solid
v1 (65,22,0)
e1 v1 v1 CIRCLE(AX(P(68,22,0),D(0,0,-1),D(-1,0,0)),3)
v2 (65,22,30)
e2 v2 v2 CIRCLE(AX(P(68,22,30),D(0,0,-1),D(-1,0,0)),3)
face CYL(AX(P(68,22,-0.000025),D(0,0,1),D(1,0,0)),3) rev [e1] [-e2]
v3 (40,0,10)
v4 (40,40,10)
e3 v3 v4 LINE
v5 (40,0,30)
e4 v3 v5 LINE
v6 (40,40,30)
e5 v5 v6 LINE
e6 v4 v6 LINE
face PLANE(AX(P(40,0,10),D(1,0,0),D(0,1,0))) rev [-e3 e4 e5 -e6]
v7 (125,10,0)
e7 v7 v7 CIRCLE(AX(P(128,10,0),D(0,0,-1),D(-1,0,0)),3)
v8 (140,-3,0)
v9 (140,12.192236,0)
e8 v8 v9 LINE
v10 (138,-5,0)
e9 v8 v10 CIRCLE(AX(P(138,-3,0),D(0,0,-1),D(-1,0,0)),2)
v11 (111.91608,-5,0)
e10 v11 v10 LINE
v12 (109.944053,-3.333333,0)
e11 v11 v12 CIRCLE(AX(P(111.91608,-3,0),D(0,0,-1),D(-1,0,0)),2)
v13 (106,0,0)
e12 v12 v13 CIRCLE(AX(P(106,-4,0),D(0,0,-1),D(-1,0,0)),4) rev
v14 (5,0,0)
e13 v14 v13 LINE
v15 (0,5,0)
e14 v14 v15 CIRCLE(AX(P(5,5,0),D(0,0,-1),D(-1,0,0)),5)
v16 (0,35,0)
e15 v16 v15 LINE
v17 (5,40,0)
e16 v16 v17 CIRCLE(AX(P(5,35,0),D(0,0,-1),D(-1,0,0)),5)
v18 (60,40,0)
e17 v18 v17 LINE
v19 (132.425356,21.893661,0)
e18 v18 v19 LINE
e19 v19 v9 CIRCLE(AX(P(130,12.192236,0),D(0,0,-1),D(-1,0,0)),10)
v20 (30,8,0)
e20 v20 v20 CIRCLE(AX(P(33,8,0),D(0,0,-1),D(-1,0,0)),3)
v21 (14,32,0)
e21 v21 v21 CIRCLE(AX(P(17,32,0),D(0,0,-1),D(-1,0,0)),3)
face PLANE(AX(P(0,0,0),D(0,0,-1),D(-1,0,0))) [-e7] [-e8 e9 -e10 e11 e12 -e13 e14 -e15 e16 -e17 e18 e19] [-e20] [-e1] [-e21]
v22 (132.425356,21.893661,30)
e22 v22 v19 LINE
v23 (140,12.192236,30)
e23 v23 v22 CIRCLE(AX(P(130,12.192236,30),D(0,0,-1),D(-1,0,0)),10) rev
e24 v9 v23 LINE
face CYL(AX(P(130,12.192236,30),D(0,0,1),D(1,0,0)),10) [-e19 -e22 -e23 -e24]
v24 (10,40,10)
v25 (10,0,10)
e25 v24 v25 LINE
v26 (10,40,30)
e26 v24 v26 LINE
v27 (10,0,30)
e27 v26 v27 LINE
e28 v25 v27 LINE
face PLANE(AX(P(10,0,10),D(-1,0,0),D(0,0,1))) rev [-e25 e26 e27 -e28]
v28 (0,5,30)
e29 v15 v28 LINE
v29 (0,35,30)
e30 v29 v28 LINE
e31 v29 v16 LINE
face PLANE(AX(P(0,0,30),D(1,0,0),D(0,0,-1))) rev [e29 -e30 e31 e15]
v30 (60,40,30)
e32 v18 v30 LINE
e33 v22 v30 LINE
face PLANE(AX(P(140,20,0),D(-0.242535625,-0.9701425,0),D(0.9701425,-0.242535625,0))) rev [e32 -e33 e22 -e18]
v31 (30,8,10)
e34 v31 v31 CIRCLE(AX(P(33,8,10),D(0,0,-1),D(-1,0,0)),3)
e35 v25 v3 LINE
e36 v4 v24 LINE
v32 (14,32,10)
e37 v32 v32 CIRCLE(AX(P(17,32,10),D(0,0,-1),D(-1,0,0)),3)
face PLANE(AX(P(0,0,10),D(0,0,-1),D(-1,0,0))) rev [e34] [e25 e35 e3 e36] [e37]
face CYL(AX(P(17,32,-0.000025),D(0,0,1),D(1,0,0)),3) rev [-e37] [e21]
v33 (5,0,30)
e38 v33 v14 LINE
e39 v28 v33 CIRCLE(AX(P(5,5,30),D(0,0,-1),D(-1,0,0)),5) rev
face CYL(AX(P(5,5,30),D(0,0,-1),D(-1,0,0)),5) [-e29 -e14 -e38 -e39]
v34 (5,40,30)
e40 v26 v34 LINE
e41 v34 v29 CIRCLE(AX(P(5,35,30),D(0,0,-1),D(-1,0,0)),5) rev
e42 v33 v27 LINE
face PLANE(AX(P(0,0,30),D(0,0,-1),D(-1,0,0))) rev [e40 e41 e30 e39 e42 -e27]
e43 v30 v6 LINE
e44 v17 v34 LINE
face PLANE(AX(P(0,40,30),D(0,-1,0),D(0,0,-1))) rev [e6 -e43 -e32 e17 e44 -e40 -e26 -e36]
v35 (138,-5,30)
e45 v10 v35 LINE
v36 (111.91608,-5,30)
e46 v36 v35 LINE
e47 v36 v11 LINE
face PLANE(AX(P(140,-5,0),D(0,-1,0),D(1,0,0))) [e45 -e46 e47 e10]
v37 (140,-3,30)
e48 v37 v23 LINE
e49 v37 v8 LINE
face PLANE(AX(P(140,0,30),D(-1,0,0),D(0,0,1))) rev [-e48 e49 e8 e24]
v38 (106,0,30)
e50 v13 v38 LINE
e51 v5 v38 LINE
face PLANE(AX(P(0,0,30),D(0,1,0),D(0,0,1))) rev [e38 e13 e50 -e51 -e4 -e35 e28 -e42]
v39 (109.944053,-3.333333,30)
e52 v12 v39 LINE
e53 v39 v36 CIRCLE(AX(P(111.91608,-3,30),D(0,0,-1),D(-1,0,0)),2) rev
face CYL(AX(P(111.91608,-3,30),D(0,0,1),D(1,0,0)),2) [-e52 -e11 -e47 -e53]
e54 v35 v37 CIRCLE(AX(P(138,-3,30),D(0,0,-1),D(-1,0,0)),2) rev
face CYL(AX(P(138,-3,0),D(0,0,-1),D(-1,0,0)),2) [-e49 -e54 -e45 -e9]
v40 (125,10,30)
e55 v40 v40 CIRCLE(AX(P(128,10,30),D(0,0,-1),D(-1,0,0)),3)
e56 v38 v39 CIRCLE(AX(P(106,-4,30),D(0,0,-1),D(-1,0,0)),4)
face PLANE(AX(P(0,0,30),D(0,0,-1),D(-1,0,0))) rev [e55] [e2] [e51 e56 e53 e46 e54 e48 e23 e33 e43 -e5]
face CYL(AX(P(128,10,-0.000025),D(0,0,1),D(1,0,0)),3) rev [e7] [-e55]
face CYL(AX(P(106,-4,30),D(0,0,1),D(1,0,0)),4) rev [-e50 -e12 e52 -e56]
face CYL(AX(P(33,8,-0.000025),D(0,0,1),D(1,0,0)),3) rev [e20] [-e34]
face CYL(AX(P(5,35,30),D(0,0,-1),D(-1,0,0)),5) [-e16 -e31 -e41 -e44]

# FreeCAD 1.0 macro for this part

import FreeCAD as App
import Part
import Sketcher

V = App.Vector
Q = App.Units.Quantity


def edges_at(feature, points):
    """Names of the edges that pass closest to the given points."""
    edges = feature.Shape.Edges
    near = lambda p: min(range(len(edges)), key=lambda i: edges[i].distToShape(Part.Vertex(*p))[0])
    return sorted({f"Edge{near(p) + 1}" for p in points})


def add_polygon(sketch, points):
    """Adds a closed chain of lines whose ends are joined by coincident constraints."""
    first, n = sketch.GeometryCount, len(points)
    for a, b in zip(points, points[1:] + points[:1]):
        sketch.addGeometry(Part.LineSegment(App.Vector(*a, 0), App.Vector(*b, 0)), False)
    for i in range(n):
        sketch.addConstraint(Sketcher.Constraint("Coincident", first + i, 2, first + (i + 1) % n, 1))

doc = App.newDocument("Part")
params = doc.addObject("Spreadsheet::Sheet", "Params")
for row, (alias, value) in enumerate([
    ("sketch1_width", "140 mm"),
    ("sketch1_height", "40 mm"),
    ("pad1_length", "30 mm"),
    ("sketch2_width", "30 mm"),
    ("sketch2_height", "40 mm"),
    ("pocket1_length", "20 mm"),
    ("sketch3_width", "80 mm"),
    ("sketch3_height", "20 mm"),
    ("sketch4_diameter", "6 mm"),
    ("fillet_radius", "10 mm"),
    ("sketch5_width", "30 mm"),
    ("sketch5_height", "5 mm"),
    ("pad2_length", "30 mm"),
    ("fillet2_radius", "4 mm"),
    ("fillet3_radius", "2 mm"),
    ("fillet4_radius", "5 mm"),
], start=1):
    params.set(f"A{row}", alias)
    params.set(f"B{row}", "=" + value)
    params.setAlias(f"B{row}", alias)

body = doc.addObject("PartDesign::Body", "Body")

sketch1 = body.newObject("Sketcher::SketchObject", "Sketch")
sketch1.AttachmentSupport = (doc.getObject("XY_Plane"), [""])
sketch1.MapMode = "FlatFace"
add_polygon(sketch1, [(0, 40), (0, 0), (140, 0), (140, 40)])
sketch1.addConstraint([
    Sketcher.Constraint("Vertical", 0),
    Sketcher.Constraint("Horizontal", 1),
    Sketcher.Constraint("Vertical", 2),
    Sketcher.Constraint("Horizontal", 3),
    Sketcher.Constraint("Coincident", 0, 2, -1, 1),
    Sketcher.Constraint("DistanceX", 1, 1, 1, 2, Q("140 mm")),
    Sketcher.Constraint("DistanceY", 0, 2, 0, 1, Q("40 mm")),
])
sketch1.setExpression("Constraints[9]", "Params.sketch1_width")
sketch1.setExpression("Constraints[10]", "Params.sketch1_height")
pad1 = body.newObject("PartDesign::Pad", "Pad")
pad1.Profile = sketch1
pad1.setExpression("Length", "Params.pad1_length")

sketch2 = body.newObject("Sketcher::SketchObject", "Sketch001")
sketch2.AttachmentSupport = (doc.getObject("XY_Plane"), [""])
sketch2.MapMode = "FlatFace"
sketch2.AttachmentOffset = App.Placement(V(0, 0, 30), App.Rotation())
add_polygon(sketch2, [(10, 40), (10, 0), (40, 0), (40, 40)])
sketch2.addConstraint([
    Sketcher.Constraint("Vertical", 0),
    Sketcher.Constraint("Horizontal", 1),
    Sketcher.Constraint("Vertical", 2),
    Sketcher.Constraint("Horizontal", 3),
    Sketcher.Constraint("PointOnObject", 0, 2, -1),
    Sketcher.Constraint("DistanceX", 1, 1, 1, 2, Q("30 mm")),
    Sketcher.Constraint("DistanceY", 0, 2, 0, 1, Q("40 mm")),
    Sketcher.Constraint("DistanceX", -1, 1, 0, 2, Q("10 mm")),
])
sketch2.setExpression("Constraints[9]", "Params.sketch2_width")
sketch2.setExpression("Constraints[10]", "Params.sketch2_height")
pocket1 = body.newObject("PartDesign::Pocket", "Pocket")
pocket1.Profile = sketch2
pocket1.setExpression("Length", "Params.pocket1_length")

sketch3 = body.newObject("Sketcher::SketchObject", "Sketch002")
sketch3.AttachmentSupport = (doc.getObject("XY_Plane"), [""])
sketch3.MapMode = "FlatFace"
sketch3.AttachmentOffset = App.Placement(V(0, 0, 30), App.Rotation())
add_polygon(sketch3, [(60, 40), (140, 20), (140, 40)])
sketch3.addConstraint([
    Sketcher.Constraint("Vertical", 1),
    Sketcher.Constraint("Horizontal", 2),
    Sketcher.Constraint("DistanceX", 2, 2, 2, 1, Q("80 mm")),
    Sketcher.Constraint("DistanceY", 1, 1, 1, 2, Q("20 mm")),
    Sketcher.Constraint("DistanceX", -1, 1, 0, 2, Q("140 mm")),
    Sketcher.Constraint("DistanceY", -1, 1, 0, 2, Q("20 mm")),
])
sketch3.setExpression("Constraints[5]", "Params.sketch3_width")
sketch3.setExpression("Constraints[6]", "Params.sketch3_height")
pocket2 = body.newObject("PartDesign::Pocket", "Pocket001")
pocket2.Profile = sketch3
pocket2.Type = "ThroughAll"
pocket2.Midplane = True

sketch4 = body.newObject("Sketcher::SketchObject", "Sketch003")
sketch4.AttachmentSupport = (doc.getObject("XY_Plane"), [""])
sketch4.MapMode = "FlatFace"
sketch4.AttachmentOffset = App.Placement(V(0, 0, 30), App.Rotation())
sketch4.addGeometry([
    Part.Circle(V(17, 32, 0), V(0, 0, 1), 3),
    Part.Circle(V(33, 8, 0), V(0, 0, 1), 3),
    Part.Circle(V(68, 22, 0), V(0, 0, 1), 3),
    Part.Circle(V(128, 10, 0), V(0, 0, 1), 3),
], False)
sketch4.addConstraint([
    Sketcher.Constraint("Equal", 0, 1),
    Sketcher.Constraint("Equal", 1, 2),
    Sketcher.Constraint("Equal", 2, 3),
    Sketcher.Constraint("Diameter", 0, Q("6 mm")),
    Sketcher.Constraint("DistanceX", -1, 1, 0, 3, Q("17 mm")),
    Sketcher.Constraint("DistanceY", -1, 1, 0, 3, Q("32 mm")),
    Sketcher.Constraint("DistanceX", -1, 1, 1, 3, Q("33 mm")),
    Sketcher.Constraint("DistanceY", -1, 1, 1, 3, Q("8 mm")),
    Sketcher.Constraint("DistanceX", -1, 1, 2, 3, Q("68 mm")),
    Sketcher.Constraint("DistanceY", -1, 1, 2, 3, Q("22 mm")),
    Sketcher.Constraint("DistanceX", -1, 1, 3, 3, Q("128 mm")),
    Sketcher.Constraint("DistanceY", -1, 1, 3, 3, Q("10 mm")),
])
sketch4.setExpression("Constraints[3]", "Params.sketch4_diameter")
pocket3 = body.newObject("PartDesign::Pocket", "Pocket002")
pocket3.Profile = sketch4
pocket3.Type = "ThroughAll"
pocket3.Midplane = True
doc.recompute()

fillet = body.newObject("PartDesign::Fillet", "Fillet")
fillet.Base = (pocket3, edges_at(pocket3, [(140, 20, 15)]))
fillet.setExpression("Radius", "Params.fillet_radius")

sketch5 = body.newObject("Sketcher::SketchObject", "Sketch004")
sketch5.AttachmentSupport = (doc.getObject("XY_Plane"), [""])
sketch5.MapMode = "FlatFace"
sketch5.AttachmentOffset = App.Placement(V(0, 0, 30), App.Rotation())
add_polygon(sketch5, [(110, 0), (110, -5), (140, -5), (140, 0)])
sketch5.addConstraint([
    Sketcher.Constraint("Vertical", 0),
    Sketcher.Constraint("Horizontal", 1),
    Sketcher.Constraint("Vertical", 2),
    Sketcher.Constraint("Horizontal", 3),
    Sketcher.Constraint("PointOnObject", 2, 2, -1),
    Sketcher.Constraint("DistanceX", 1, 1, 1, 2, Q("30 mm")),
    Sketcher.Constraint("DistanceY", 0, 2, 0, 1, Q("5 mm")),
    Sketcher.Constraint("DistanceX", -1, 1, 0, 2, Q("110 mm")),
])
sketch5.setExpression("Constraints[9]", "Params.sketch5_width")
sketch5.setExpression("Constraints[10]", "Params.sketch5_height")
pad2 = body.newObject("PartDesign::Pad", "Pad001")
pad2.Profile = sketch5
pad2.setExpression("Length", "Params.pad2_length")
pad2.Reversed = True
doc.recompute()

fillet2 = body.newObject("PartDesign::Fillet", "Fillet001")
fillet2.Base = (pad2, edges_at(pad2, [(110, 0, 15)]))
fillet2.setExpression("Radius", "Params.fillet2_radius")
doc.recompute()

fillet3 = body.newObject("PartDesign::Fillet", "Fillet002")
fillet3.Base = (fillet2, edges_at(fillet2, [(140, -5, 15), (110, -5, 15)]))
fillet3.setExpression("Radius", "Params.fillet3_radius")
doc.recompute()

fillet4 = body.newObject("PartDesign::Fillet", "Fillet003")
fillet4.Base = (fillet3, edges_at(fillet3, [(0, 40, 15), (0, 0, 15)]))
fillet4.setExpression("Radius", "Params.fillet4_radius")

doc.recompute()
